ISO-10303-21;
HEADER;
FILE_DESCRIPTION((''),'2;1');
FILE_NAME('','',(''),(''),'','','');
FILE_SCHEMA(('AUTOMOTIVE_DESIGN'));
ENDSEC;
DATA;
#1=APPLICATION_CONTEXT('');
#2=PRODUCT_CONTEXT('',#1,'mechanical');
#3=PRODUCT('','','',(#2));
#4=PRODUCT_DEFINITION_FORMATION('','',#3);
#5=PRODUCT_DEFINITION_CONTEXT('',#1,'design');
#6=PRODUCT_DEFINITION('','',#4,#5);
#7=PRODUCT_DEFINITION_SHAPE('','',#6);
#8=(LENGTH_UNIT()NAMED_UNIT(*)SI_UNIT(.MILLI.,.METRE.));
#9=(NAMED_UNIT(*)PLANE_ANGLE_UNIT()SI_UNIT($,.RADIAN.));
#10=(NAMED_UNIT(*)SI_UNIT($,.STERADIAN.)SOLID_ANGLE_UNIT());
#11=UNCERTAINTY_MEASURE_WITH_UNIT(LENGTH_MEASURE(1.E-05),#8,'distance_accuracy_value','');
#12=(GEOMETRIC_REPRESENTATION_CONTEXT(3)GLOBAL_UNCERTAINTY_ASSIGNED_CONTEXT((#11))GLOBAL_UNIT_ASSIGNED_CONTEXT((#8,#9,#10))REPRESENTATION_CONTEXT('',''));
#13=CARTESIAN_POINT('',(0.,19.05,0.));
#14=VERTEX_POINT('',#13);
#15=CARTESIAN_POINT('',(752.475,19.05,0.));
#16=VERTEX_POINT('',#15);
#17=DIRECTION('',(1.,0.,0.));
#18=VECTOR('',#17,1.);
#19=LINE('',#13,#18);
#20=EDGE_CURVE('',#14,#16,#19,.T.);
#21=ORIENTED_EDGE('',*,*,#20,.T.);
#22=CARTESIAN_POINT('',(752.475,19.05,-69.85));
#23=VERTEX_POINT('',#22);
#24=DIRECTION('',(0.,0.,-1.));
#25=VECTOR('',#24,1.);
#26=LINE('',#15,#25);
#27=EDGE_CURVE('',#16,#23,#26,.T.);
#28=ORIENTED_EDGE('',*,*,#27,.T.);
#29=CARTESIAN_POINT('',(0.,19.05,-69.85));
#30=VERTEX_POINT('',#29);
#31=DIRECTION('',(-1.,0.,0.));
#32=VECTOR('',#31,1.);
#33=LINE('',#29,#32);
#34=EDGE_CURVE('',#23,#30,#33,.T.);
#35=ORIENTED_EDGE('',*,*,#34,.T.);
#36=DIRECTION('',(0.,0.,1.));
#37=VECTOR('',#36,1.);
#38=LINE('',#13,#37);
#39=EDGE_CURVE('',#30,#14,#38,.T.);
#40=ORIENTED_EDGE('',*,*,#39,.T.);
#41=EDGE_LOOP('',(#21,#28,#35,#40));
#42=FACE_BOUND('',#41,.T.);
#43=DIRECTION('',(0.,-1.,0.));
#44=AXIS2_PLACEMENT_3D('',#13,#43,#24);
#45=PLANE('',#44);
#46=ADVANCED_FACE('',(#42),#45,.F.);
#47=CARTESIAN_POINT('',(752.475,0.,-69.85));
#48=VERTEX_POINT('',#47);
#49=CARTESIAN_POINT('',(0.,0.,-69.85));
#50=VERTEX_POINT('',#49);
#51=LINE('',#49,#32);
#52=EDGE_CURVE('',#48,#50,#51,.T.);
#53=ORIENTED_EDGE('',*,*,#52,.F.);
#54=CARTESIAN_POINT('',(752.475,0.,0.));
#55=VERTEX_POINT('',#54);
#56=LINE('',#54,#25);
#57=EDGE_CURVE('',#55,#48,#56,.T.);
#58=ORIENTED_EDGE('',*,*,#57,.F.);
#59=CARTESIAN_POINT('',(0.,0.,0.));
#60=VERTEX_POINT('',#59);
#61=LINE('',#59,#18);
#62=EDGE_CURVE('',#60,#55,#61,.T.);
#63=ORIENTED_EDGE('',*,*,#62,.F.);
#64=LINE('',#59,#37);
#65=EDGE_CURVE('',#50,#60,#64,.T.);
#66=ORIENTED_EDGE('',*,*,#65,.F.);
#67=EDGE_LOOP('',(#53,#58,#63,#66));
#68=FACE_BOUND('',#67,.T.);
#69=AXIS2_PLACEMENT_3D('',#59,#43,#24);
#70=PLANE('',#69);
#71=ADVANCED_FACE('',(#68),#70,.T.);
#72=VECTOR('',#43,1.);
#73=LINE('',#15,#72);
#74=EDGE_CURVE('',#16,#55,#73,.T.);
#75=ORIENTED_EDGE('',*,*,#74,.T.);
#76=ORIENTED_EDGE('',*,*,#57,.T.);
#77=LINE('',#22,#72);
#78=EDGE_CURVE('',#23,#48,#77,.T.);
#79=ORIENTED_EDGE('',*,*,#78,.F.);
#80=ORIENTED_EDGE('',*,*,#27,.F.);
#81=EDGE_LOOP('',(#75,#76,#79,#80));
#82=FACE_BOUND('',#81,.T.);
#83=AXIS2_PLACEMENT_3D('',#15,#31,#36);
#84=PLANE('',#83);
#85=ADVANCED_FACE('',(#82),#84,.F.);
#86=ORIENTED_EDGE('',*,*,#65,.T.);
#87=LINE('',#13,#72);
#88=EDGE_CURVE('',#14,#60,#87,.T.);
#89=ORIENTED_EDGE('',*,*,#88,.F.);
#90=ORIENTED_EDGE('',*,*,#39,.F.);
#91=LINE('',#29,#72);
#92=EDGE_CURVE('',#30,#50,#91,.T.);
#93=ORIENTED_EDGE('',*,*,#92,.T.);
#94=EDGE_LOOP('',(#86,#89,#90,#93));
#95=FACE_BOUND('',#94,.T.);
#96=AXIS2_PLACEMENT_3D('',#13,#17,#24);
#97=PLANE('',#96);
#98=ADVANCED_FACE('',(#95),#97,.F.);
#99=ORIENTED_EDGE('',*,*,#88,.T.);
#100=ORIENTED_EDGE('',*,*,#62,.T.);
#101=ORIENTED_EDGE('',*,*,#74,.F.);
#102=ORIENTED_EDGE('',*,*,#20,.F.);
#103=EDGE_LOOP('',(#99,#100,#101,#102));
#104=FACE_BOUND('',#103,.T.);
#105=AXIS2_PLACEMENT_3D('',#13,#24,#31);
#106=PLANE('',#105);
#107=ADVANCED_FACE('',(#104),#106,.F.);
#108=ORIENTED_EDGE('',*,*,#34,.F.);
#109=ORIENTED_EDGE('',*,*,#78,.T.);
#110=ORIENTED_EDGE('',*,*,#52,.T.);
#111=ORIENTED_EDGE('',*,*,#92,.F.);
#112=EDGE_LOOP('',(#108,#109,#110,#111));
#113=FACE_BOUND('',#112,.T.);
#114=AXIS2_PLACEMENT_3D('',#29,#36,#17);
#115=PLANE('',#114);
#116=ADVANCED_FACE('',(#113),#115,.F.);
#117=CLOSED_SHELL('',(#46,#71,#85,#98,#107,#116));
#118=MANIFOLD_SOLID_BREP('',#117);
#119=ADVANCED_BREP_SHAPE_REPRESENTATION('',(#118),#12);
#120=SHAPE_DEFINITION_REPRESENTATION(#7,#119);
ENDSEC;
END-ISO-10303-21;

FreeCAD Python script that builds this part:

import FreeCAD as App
import Part
import Sketcher
from FreeCAD import Vector
Q = App.Units.Quantity

doc = App.newDocument("Part")
params = doc.addObject("Spreadsheet::Sheet", "Params")
for row, (alias, value) in enumerate([
    ("sketch1_height", "2.75 in"),
    ("sketch1_width", "29.625 in"),
    ("pad1_length", "0.75 in"),
], start=1):
    params.set(f"A{row}", alias)
    params.set(f"B{row}", "=" + value)
    params.setAlias(f"B{row}", alias)

body = doc.addObject("PartDesign::Body", "Body")

# Sketch on XZ plane
sketch1 = doc.addObject("Sketcher::SketchObject", "Sketch")
body.addObject(sketch1)
sketch1.AttachmentSupport = (doc.XZ_Plane, [""])
sketch1.MapMode = "FlatFace"
sketch1.addGeometry([
    Part.LineSegment(Vector(0, -70, 0), Vector(0, 0, 0)),
    Part.LineSegment(Vector(0, 0, 0), Vector(752, 0, 0)),
    Part.LineSegment(Vector(752, 0, 0), Vector(752, -70, 0)),
    Part.LineSegment(Vector(752, -70, 0), Vector(0, -70, 0)),
], False)
sketch1.addConstraint([
    Sketcher.Constraint("Coincident", 0, 2, 1, 1),
    Sketcher.Constraint("Coincident", 1, 2, 2, 1),
    Sketcher.Constraint("Coincident", 2, 2, 3, 1),
    Sketcher.Constraint("Coincident", 3, 2, 0, 1),
    Sketcher.Constraint("Vertical", 0),
    Sketcher.Constraint("Horizontal", 1),
    Sketcher.Constraint("Vertical", 2),
    Sketcher.Constraint("Horizontal", 3),
    Sketcher.Constraint("Coincident", 0, 2, -1, 1),
    Sketcher.Constraint("DistanceY", 0, 1, 0, 2, Q("2.75 in")),
    Sketcher.Constraint("DistanceX", 1, 1, 1, 2, Q("29.625 in")),
])
sketch1.setExpression("Constraints[9]", "Params.sketch1_height")
sketch1.setExpression("Constraints[10]", "Params.sketch1_width")
pad1 = doc.addObject("PartDesign::Pad", "Pad")
body.addObject(pad1)
pad1.Profile = sketch1
pad1.setExpression("Length", "Params.pad1_length")
pad1.Reversed = True

doc.recompute()
